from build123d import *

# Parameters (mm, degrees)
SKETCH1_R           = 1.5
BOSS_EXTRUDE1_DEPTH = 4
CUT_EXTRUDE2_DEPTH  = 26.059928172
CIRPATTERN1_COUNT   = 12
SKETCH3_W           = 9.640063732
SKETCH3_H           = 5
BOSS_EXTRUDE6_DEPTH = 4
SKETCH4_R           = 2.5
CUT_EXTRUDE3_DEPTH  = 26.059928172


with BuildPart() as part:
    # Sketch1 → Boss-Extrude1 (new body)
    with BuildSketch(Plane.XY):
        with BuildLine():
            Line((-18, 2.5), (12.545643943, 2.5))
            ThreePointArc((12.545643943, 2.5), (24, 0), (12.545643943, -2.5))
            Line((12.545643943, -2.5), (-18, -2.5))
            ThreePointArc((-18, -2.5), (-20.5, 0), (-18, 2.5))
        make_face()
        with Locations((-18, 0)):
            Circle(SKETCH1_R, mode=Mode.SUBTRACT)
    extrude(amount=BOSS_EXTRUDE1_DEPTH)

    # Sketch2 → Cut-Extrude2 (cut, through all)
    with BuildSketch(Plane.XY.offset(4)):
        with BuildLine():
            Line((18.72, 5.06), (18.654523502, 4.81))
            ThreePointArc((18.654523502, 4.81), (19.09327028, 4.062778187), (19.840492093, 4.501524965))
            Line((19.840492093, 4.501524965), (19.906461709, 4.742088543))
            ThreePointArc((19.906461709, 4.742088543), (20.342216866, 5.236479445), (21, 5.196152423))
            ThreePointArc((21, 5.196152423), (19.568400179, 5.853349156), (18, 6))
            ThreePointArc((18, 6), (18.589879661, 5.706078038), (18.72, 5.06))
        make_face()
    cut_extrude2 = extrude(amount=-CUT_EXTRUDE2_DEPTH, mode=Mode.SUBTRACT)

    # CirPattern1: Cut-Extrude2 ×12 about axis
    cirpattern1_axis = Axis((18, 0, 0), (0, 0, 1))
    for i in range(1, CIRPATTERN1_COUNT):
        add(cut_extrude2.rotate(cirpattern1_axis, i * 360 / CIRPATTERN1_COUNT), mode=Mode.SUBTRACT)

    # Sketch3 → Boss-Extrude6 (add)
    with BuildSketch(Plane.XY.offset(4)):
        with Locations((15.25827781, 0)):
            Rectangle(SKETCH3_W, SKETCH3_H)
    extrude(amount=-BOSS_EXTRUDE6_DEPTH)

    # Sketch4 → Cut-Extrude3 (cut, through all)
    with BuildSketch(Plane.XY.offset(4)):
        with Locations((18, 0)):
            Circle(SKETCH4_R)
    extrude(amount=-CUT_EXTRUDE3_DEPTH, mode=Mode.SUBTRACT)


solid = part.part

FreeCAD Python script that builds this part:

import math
import FreeCAD as App
import Part
import Sketcher

V = App.Vector
Q = App.Units.Quantity


def add_polygon(sketch, points):
    """Adds a closed chain of lines whose ends are joined by coincident constraints."""
    first, n = sketch.GeometryCount, len(points)
    for a, b in zip(points, points[1:] + points[:1]):
        sketch.addGeometry(Part.LineSegment(App.Vector(*a, 0), App.Vector(*b, 0)), False)
    for i in range(n):
        sketch.addConstraint(Sketcher.Constraint("Coincident", first + i, 2, first + (i + 1) % n, 1))

doc = App.newDocument("Part")
body = doc.addObject("PartDesign::Body", "Body")
body.AllowCompound = True

# Sketch on XY plane
sketch1 = body.newObject("Sketcher::SketchObject", "Sketch")
sketch1.AttachmentSupport = (doc.getObject("XY_Plane"), [""])
sketch1.MapMode = "FlatFace"
sketch1.addGeometry([
    Part.LineSegment(V(12.5, 2.5, 0), V(-18, 2.5, 0)),  # 0
    Part.ArcOfCircle(Part.Circle(V(-18, 0, 0), V(0, 0, 1), 2.5), math.radians(90), math.radians(270)),  # 1
    Part.LineSegment(V(-18, -2.5, 0), V(12.5, -2.5, 0)),  # 2
    Part.ArcOfCircle(Part.Circle(V(18, 0, 0), V(0, 0, 1), 6), math.radians(-155), math.radians(155)),  # 3
    Part.Circle(V(-18, 0, 0), V(0, 0, 1), 1.5),  # 4
], False)
sketch1.addConstraint([
    Sketcher.Constraint("Tangent", 0, 2, 1, 1),
    Sketcher.Constraint("Tangent", 1, 2, 2, 1),
    Sketcher.Constraint("Coincident", 2, 2, 3, 1),
    Sketcher.Constraint("Coincident", 3, 2, 0, 1),
    Sketcher.Constraint("Horizontal", 0),
    Sketcher.Constraint("Horizontal", 2),
    Sketcher.Constraint("Coincident", 4, 3, 1, 3),
    Sketcher.Constraint("Symmetric", 1, 3, 3, 3, -1, 1),
    Sketcher.Constraint("PointOnObject", 1, 3, -1),
    Sketcher.Constraint("Diameter", 4, Q("3 mm")),
    Sketcher.Constraint("Radius", 3, Q("6 mm")),
    Sketcher.Constraint("Radius", 1, Q("2.5 mm")),
    Sketcher.Constraint("DistanceX", 1, 3, -1, 1, Q("18 mm")),
])
pad1 = body.newObject("PartDesign::Pad", "Pad")
pad1.Profile = sketch1
pad1.Length = 4

# Sketch on XY plane
sketch2 = body.newObject("Sketcher::SketchObject", "Sketch001")
sketch2.AttachmentSupport = (doc.getObject("XY_Plane"), [""])
sketch2.MapMode = "FlatFace"
sketch2.AttachmentOffset = App.Placement(V(0, 0, 4), App.Rotation())
sketch2.addGeometry([
    Part.LineSegment(V(18.72, 5.06, 0), V(18.654524, 4.81, 0)),  # 0
    Part.ArcOfCircle(Part.Circle(V(19.247508, 4.655762, 0), V(0, 0, 1), 0.612715), math.radians(165.420209), math.radians(345.420209)),  # 1
    Part.LineSegment(V(19.840492, 4.501525, 0), V(19.906462, 4.742089, 0)),  # 2
    Part.ArcOfCircle(Part.Circle(V(20.629873, 4.543708, 0), V(0, 0, 1), 0.750119), math.radians(60.434041), math.radians(164.664802)),  # 3
    Part.ArcOfCircle(Part.Circle(V(18.353335, 1.318665, 0), V(0, 0, 1), 4.69465), math.radians(55.683644), math.radians(94.316356)),  # 4
    Part.ArcOfCircle(Part.Circle(V(17.994471, 5.25002, 0), V(0, 0, 1), 0.75), math.radians(-14.676459), math.radians(89.577616)),  # 5
], False)
sketch2.addConstraint([
    Sketcher.Constraint("Coincident", 0, 2, 1, 1),
    Sketcher.Constraint("Coincident", 1, 2, 2, 1),
    Sketcher.Constraint("Coincident", 2, 2, 3, 2),
    Sketcher.Constraint("Coincident", 3, 1, 4, 1),
    Sketcher.Constraint("Coincident", 4, 2, 5, 2),
    Sketcher.Constraint("Coincident", 5, 1, 0, 1),
    Sketcher.Constraint("Radius", 5, Q("0.75 mm")),
    Sketcher.Constraint("DistanceX", -1, 1, 3, 1, Q("21 mm")),
    Sketcher.Constraint("DistanceX", -1, 1, 4, 2, Q("18 mm")),
    Sketcher.Constraint("DistanceY", -1, 1, 4, 2, Q("6 mm")),
    Sketcher.Constraint("DistanceY", -1, 1, 0, 2, Q("4.81 mm")),
    Sketcher.Constraint("DistanceX", -1, 1, 5, 1, Q("18.72 mm")),
    Sketcher.Constraint("DistanceY", -1, 1, 5, 1, Q("5.06 mm")),
    Sketcher.Constraint("Radius", 3, Q("0.750119 mm")),
    Sketcher.Constraint("Radius", 4, Q("4.69465 mm")),
    Sketcher.Constraint("Radius", 1, Q("0.612715 mm")),
    Sketcher.Constraint("DistanceX", 5, 3, 3, 3, Q("2.635401 mm")),
    Sketcher.Constraint("DistanceX", -1, 1, 2, 2, Q("19.906462 mm")),
    Sketcher.Constraint("DistanceY", -1, 1, 2, 2, Q("4.742089 mm")),
    Sketcher.Constraint("DistanceX", 0, 2, 3, 3, Q("1.975349 mm")),
    Sketcher.Constraint("DistanceX", 1, 2, 3, 3, Q("0.78938 mm")),
    Sketcher.Constraint("DistanceY", 1, 3, 3, 1, Q("0.54039 mm")),
])
pocket1 = body.newObject("PartDesign::Pocket", "Pocket")
pocket1.Profile = sketch2
pocket1.Type = "ThroughAll"
doc.recompute()

datumline = body.newObject("PartDesign::Line", "DatumLine")
datumline.Placement = App.Placement(V(18, 0, 0), App.Rotation(V(0, 0, 1), V(0, 0, 1)))
polarpattern = body.newObject("PartDesign::PolarPattern", "PolarPattern")
polarpattern.Originals = [pocket1]
polarpattern.Axis = (datumline, [""])
polarpattern.Angle = 360
polarpattern.Occurrences = 12
body.Tip = polarpattern

# Sketch on XY plane
sketch3 = body.newObject("Sketcher::SketchObject", "Sketch002")
sketch3.AttachmentSupport = (doc.getObject("XY_Plane"), [""])
sketch3.MapMode = "FlatFace"
sketch3.AttachmentOffset = App.Placement(V(0, 0, 4), App.Rotation())
add_polygon(sketch3, [(10, 2), (10, -2), (20, -2), (20, 2)])  # lines 0-3
sketch3.addConstraint([
    Sketcher.Constraint("Vertical", 0),
    Sketcher.Constraint("Horizontal", 1),
    Sketcher.Constraint("Vertical", 2),
    Sketcher.Constraint("Horizontal", 3),
    Sketcher.Constraint("DistanceY", 0, 2, 0, 1, Q("5 mm")),
    Sketcher.Constraint("DistanceY", 0, 2, -1, 1, Q("2.5 mm")),
    Sketcher.Constraint("DistanceX", 1, 1, 1, 2, Q("9.640064 mm")),
    Sketcher.Constraint("DistanceX", -1, 1, 1, 2, Q("20.07831 mm")),
])
pad2 = body.newObject("PartDesign::Pad", "Pad001")
pad2.Profile = sketch3
pad2.Length = 4
pad2.Reversed = True

# Sketch on XY plane
sketch4 = body.newObject("Sketcher::SketchObject", "Sketch003")
sketch4.AttachmentSupport = (doc.getObject("XY_Plane"), [""])
sketch4.MapMode = "FlatFace"
sketch4.AttachmentOffset = App.Placement(V(0, 0, 4), App.Rotation())
sketch4.addGeometry(Part.Circle(V(18, 0, 0), V(0, 0, 1), 2.5), False)
sketch4.addConstraint([
    Sketcher.Constraint("PointOnObject", 0, 3, -1),
    Sketcher.Constraint("Diameter", 0, Q("5 mm")),
    Sketcher.Constraint("DistanceX", -1, 1, 0, 3, Q("18 mm")),
])
pocket2 = body.newObject("PartDesign::Pocket", "Pocket001")
pocket2.Profile = sketch4
pocket2.Type = "ThroughAll"

doc.recompute()
